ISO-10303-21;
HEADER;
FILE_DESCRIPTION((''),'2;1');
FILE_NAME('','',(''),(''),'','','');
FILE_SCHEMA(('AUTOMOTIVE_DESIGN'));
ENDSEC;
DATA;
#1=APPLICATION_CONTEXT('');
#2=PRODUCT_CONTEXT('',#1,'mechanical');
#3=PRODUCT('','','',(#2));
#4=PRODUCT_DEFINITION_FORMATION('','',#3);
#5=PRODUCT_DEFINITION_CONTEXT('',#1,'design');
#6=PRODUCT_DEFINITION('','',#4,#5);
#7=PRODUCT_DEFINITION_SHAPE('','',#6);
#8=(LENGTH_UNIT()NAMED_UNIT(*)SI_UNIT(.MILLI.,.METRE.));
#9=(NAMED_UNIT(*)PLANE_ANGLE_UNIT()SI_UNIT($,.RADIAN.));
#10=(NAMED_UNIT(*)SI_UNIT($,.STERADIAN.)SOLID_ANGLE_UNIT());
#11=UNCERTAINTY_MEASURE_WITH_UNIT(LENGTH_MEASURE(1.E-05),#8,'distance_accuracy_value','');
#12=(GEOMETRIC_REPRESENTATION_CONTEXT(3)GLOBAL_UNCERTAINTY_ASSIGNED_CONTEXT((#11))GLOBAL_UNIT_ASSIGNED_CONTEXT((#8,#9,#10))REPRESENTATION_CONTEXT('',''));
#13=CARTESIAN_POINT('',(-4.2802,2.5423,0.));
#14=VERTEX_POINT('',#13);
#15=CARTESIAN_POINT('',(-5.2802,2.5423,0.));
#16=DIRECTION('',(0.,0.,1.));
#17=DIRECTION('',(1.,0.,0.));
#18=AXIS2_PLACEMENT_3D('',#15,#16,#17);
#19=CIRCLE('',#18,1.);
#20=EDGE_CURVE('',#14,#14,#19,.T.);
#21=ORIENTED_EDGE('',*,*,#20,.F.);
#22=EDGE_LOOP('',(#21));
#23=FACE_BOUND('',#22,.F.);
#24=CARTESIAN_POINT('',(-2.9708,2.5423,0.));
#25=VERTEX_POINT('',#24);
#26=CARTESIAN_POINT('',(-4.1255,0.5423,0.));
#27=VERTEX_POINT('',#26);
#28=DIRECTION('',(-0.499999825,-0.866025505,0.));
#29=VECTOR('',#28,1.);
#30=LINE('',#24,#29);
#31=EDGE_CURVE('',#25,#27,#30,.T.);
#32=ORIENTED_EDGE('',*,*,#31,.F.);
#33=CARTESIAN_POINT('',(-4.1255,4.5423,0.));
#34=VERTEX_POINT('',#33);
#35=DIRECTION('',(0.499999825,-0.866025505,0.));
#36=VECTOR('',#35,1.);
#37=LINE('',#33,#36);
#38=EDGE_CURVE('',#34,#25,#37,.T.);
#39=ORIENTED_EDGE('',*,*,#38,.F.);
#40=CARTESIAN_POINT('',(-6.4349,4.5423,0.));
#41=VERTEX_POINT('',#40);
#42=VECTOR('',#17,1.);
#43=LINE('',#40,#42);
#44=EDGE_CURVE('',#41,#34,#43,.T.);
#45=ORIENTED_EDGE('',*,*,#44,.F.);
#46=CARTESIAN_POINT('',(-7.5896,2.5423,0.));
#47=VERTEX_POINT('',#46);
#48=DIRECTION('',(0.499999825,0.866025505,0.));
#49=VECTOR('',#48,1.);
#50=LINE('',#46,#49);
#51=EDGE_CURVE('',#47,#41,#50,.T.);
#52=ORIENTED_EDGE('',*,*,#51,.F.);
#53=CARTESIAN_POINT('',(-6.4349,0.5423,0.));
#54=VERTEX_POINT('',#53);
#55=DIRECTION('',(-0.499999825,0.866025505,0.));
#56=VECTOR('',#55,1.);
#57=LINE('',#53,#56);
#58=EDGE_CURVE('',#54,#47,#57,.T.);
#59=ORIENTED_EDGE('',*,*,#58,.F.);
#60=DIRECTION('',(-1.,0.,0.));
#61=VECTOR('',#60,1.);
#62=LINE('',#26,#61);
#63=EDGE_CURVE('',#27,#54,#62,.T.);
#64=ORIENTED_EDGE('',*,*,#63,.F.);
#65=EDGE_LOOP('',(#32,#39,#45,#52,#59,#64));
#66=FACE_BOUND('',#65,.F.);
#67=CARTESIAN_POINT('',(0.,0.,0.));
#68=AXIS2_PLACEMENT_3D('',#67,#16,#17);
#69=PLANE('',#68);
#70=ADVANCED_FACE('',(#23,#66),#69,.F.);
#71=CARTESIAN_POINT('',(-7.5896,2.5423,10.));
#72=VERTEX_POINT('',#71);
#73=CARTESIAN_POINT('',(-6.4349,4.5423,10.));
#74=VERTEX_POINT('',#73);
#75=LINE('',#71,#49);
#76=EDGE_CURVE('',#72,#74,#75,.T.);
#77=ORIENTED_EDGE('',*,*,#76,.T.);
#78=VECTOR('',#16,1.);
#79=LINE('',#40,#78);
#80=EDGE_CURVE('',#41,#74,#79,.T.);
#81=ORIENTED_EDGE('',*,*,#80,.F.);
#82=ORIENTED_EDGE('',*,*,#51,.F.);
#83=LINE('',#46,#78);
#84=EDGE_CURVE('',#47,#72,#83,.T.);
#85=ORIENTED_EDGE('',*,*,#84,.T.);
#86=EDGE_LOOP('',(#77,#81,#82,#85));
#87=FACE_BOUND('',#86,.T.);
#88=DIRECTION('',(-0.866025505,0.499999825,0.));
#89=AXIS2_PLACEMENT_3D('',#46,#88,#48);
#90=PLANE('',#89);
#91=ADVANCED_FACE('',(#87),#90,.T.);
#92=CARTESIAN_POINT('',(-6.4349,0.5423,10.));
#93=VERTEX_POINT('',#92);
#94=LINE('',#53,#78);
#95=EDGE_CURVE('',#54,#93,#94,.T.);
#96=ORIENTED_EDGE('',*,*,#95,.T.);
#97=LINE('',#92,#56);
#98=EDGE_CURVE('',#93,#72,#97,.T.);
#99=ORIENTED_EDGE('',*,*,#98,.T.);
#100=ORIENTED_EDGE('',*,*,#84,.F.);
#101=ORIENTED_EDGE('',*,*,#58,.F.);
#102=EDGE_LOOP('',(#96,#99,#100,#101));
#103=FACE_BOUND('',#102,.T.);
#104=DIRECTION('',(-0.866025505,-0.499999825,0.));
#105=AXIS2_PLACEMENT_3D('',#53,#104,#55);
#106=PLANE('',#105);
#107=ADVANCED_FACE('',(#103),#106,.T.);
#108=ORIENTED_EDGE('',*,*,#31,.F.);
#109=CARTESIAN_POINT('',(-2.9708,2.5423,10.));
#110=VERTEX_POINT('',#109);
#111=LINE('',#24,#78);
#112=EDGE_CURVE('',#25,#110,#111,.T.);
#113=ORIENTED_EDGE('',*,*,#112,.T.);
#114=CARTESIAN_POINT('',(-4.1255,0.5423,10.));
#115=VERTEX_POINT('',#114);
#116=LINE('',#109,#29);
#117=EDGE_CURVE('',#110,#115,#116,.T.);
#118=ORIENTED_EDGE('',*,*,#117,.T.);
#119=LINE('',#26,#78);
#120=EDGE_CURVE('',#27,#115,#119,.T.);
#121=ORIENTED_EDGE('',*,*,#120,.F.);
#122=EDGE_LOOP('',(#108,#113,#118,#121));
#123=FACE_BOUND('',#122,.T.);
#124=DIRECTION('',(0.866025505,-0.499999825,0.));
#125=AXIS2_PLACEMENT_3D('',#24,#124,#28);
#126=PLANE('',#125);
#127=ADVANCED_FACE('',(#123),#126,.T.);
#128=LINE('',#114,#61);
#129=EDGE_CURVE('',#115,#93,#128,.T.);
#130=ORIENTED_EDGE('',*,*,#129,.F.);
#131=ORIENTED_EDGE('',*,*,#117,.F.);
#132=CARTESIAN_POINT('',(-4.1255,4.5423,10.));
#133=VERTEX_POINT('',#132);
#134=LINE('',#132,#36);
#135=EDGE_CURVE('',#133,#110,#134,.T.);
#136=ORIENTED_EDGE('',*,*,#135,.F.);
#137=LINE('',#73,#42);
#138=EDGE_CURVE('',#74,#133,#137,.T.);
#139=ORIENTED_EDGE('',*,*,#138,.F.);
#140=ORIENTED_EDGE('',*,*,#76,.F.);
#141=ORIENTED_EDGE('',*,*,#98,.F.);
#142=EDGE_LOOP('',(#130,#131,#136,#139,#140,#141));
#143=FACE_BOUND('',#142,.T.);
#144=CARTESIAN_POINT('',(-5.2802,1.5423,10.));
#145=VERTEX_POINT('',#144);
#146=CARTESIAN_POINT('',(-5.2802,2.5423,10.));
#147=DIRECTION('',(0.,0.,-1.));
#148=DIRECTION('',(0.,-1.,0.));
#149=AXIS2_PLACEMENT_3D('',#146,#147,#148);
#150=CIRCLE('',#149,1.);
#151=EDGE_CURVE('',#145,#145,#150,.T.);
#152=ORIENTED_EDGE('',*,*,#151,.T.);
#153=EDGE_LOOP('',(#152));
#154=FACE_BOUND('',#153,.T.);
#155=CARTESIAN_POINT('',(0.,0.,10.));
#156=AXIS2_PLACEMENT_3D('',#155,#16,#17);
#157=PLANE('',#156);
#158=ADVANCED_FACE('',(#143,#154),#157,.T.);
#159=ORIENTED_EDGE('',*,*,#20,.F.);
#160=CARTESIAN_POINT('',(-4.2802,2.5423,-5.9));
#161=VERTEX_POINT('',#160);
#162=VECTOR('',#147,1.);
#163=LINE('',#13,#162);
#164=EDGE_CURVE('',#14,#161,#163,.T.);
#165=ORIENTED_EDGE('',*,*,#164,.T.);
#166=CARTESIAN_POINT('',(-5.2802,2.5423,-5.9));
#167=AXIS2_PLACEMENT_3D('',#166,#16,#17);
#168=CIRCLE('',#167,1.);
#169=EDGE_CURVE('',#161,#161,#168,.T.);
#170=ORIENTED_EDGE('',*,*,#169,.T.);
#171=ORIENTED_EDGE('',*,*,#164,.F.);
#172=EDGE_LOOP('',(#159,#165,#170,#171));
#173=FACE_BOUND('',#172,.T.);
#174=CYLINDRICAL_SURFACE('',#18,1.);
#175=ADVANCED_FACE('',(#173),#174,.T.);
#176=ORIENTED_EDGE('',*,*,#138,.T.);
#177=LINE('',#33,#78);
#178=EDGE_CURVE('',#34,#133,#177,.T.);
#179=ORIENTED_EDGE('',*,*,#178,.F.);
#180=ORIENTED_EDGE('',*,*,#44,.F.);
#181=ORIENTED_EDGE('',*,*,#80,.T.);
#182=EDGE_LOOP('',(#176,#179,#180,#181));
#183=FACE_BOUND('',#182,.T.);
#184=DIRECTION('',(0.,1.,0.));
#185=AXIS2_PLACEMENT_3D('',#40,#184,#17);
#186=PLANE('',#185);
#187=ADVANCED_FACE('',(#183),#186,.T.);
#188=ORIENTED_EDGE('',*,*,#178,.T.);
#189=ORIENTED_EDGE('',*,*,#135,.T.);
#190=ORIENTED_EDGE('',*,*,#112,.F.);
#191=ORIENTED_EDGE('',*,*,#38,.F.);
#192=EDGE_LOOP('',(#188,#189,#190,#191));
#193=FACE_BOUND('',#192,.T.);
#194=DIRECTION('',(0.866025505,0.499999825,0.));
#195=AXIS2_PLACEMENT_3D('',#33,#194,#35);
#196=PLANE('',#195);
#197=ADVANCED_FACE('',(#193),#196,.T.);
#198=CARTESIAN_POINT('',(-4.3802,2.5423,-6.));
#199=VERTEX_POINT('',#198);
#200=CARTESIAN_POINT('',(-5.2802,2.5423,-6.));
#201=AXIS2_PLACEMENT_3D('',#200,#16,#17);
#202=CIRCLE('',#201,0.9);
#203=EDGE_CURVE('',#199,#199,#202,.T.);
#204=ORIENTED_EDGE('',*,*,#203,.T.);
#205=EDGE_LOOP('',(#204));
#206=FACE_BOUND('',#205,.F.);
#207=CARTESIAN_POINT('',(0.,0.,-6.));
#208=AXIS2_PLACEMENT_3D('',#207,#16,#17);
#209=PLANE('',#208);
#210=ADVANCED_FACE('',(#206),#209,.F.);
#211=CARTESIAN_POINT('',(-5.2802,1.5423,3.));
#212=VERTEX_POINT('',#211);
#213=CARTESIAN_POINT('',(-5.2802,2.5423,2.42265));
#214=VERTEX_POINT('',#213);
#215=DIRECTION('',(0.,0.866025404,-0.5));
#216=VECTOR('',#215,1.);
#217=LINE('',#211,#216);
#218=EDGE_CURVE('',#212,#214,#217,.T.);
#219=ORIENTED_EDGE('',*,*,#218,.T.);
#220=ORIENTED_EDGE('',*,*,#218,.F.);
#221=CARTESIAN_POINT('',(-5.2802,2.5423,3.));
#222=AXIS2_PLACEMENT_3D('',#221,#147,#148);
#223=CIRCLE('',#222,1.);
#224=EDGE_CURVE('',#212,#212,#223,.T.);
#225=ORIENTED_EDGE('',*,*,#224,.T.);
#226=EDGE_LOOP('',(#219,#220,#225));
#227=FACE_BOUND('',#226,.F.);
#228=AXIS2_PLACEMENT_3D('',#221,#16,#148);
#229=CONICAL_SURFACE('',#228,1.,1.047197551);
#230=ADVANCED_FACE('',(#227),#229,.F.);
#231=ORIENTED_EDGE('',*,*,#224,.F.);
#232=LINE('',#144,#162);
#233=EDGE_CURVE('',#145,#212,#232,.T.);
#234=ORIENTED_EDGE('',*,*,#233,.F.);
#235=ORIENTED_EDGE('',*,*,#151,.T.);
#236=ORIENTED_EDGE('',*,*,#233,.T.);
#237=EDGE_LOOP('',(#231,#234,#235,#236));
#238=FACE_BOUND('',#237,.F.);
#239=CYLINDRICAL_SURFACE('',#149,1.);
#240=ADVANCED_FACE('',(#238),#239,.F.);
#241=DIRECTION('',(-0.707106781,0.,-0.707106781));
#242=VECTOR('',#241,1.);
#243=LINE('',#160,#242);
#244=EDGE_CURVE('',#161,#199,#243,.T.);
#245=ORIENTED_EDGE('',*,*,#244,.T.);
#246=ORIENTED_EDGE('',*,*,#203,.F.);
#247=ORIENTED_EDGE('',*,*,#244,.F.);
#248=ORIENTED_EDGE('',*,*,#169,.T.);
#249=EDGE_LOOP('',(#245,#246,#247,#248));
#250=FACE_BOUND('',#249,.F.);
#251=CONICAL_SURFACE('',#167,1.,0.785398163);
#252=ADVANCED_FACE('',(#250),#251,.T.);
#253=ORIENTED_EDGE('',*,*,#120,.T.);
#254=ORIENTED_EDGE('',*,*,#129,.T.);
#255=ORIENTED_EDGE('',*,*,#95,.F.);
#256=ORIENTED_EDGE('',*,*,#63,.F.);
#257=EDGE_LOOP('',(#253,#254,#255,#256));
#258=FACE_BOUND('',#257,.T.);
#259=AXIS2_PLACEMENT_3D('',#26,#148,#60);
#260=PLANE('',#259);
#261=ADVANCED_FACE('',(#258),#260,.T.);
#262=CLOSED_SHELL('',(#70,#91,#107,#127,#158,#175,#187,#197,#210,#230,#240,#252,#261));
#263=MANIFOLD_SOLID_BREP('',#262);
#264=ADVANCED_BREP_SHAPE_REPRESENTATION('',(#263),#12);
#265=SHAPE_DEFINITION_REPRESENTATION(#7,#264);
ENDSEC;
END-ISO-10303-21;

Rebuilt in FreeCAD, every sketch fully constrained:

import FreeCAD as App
import Part
import Sketcher

V = App.Vector
Q = App.Units.Quantity


def edges_at(feature, points):
    """Names of the edges that pass closest to the given points."""
    edges = feature.Shape.Edges
    near = lambda p: min(range(len(edges)), key=lambda i: edges[i].distToShape(Part.Vertex(*p))[0])
    return sorted({f"Edge{near(p) + 1}" for p in points})

doc = App.newDocument("Part")
params = doc.addObject("Spreadsheet::Sheet", "Params")
for row, (alias, value) in enumerate([
    ("pad1_length", "10 mm"),
    ("sketch2_diameter", "2 mm"),
    ("pad2_length", "6 mm"),
    ("sketch3_diameter", "2 mm"),
    ("hole_diameter", "2 mm"),
    ("hole_depth", "7 mm"),
    ("chamfer_size", "0.1 mm"),
], start=1):
    params.set(f"A{row}", alias)
    params.set(f"B{row}", "=" + value)
    params.setAlias(f"B{row}", alias)

body = doc.addObject("PartDesign::Body", "Body")

sketch1 = body.newObject("Sketcher::SketchObject", "Sketch")
sketch1.AttachmentSupport = (doc.getObject("XY_Plane"), [""])
sketch1.MapMode = "FlatFace"
sketch1.addGeometry(Part.LineSegment(V(-6.4, 4.5, 0), V(-7.6, 2.5, 0)), False)
sketch1.addGeometry(Part.LineSegment(V(-7.6, 2.5, 0), V(-6.4, 0.5, 0)), False)
sketch1.addGeometry(Part.LineSegment(V(-6.4, 0.5, 0), V(-4.1, 0.5, 0)), False)
sketch1.addGeometry(Part.LineSegment(V(-4.1, 0.5, 0), V(-3, 2.5, 0)), False)
sketch1.addGeometry(Part.LineSegment(V(-3, 2.5, 0), V(-4.1, 4.5, 0)), False)
sketch1.addGeometry(Part.LineSegment(V(-4.1, 4.5, 0), V(-6.4, 4.5, 0)), False)
sketch1.addConstraint(Sketcher.Constraint("Coincident", 0, 2, 1, 1))
sketch1.addConstraint(Sketcher.Constraint("Coincident", 1, 2, 2, 1))
sketch1.addConstraint(Sketcher.Constraint("Coincident", 2, 2, 3, 1))
sketch1.addConstraint(Sketcher.Constraint("Coincident", 3, 2, 4, 1))
sketch1.addConstraint(Sketcher.Constraint("Coincident", 4, 2, 5, 1))
sketch1.addConstraint(Sketcher.Constraint("Coincident", 5, 2, 0, 1))
sketch1.addConstraint(Sketcher.Constraint("Horizontal", 2))
sketch1.addConstraint(Sketcher.Constraint("Horizontal", 5))
sketch1.addConstraint(Sketcher.Constraint("Parallel", 0, 3))
sketch1.addConstraint(Sketcher.Constraint("Parallel", 1, 4))
sketch1.addConstraint(Sketcher.Constraint("Horizontal", 0, 2, 3, 2))
sketch1.addConstraint(Sketcher.Constraint("Vertical", 2, 2, 4, 2))
sketch1.addConstraint(Sketcher.Constraint("Vertical", 1, 2, 5, 2))
sketch1.addConstraint(Sketcher.Constraint("DistanceY", 1, 2, 0, 2, Q("2 mm")))
sketch1.addConstraint(Sketcher.Constraint("Angle", 0, Q("-120 deg")))
sketch1.addConstraint(Sketcher.Constraint("DistanceX", 2, 1, 2, 2, Q("2.3094 mm")))
sketch1.addConstraint(Sketcher.Constraint("DistanceX", 1, 2, -1, 1, Q("6.435 mm")))
sketch1.addConstraint(Sketcher.Constraint("DistanceY", -1, 1, 0, 2, Q("2.5423 mm")))
pad1 = body.newObject("PartDesign::Pad", "Pad")
pad1.Profile = sketch1
pad1.setExpression("Length", "Params.pad1_length")

sketch2 = body.newObject("Sketcher::SketchObject", "Sketch001")
sketch2.AttachmentSupport = (doc.getObject("XY_Plane"), [""])
sketch2.MapMode = "FlatFace"
sketch2.addGeometry(Part.Circle(V(-5.3, 2.5, 0), V(0, 0, 1), 1), False)
sketch2.addConstraint(Sketcher.Constraint("Diameter", 0, Q("2 mm")))
sketch2.addConstraint(Sketcher.Constraint("DistanceX", 0, 3, -1, 1, Q("5.2802 mm")))
sketch2.addConstraint(Sketcher.Constraint("DistanceY", -1, 1, 0, 3, Q("2.5423 mm")))
sketch2.setExpression("Constraints[0]", "Params.sketch2_diameter")
pad2 = body.newObject("PartDesign::Pad", "Pad001")
pad2.Profile = sketch2
pad2.setExpression("Length", "Params.pad2_length")
pad2.Reversed = True

sketch3 = body.newObject("Sketcher::SketchObject", "Sketch002")
sketch3.AttachmentSupport = (doc.getObject("XY_Plane"), [""])
sketch3.MapMode = "FlatFace"
sketch3.AttachmentOffset = App.Placement(V(0, 0, 10), App.Rotation())
sketch3.addGeometry(Part.Circle(V(-5.3, 2.5, 0), V(0, 0, 1), 1), False)
sketch3.addConstraint(Sketcher.Constraint("Diameter", 0, Q("2 mm")))
sketch3.addConstraint(Sketcher.Constraint("DistanceX", 0, 3, -1, 1, Q("5.2802 mm")))
sketch3.addConstraint(Sketcher.Constraint("DistanceY", -1, 1, 0, 3, Q("2.5423 mm")))
sketch3.setExpression("Constraints[0]", "Params.sketch3_diameter")
doc.recompute()
hole = body.newObject("PartDesign::Hole", "Hole")
hole.Profile = sketch3
hole.ThreadType = "None"
hole.setExpression("Diameter", "Params.hole_diameter")
hole.DepthType = "Dimension"
hole.setExpression("Depth", "Params.hole_depth")
hole.DrillPoint = "Angled"
hole.DrillPointAngle = 120
doc.recompute()

chamfer = body.newObject("PartDesign::Chamfer", "Chamfer")
chamfer.Base = (hole, edges_at(hole, [(-6.28, 2.542, -6)]))
chamfer.setExpression("Size", "Params.chamfer_size")

doc.recompute()
